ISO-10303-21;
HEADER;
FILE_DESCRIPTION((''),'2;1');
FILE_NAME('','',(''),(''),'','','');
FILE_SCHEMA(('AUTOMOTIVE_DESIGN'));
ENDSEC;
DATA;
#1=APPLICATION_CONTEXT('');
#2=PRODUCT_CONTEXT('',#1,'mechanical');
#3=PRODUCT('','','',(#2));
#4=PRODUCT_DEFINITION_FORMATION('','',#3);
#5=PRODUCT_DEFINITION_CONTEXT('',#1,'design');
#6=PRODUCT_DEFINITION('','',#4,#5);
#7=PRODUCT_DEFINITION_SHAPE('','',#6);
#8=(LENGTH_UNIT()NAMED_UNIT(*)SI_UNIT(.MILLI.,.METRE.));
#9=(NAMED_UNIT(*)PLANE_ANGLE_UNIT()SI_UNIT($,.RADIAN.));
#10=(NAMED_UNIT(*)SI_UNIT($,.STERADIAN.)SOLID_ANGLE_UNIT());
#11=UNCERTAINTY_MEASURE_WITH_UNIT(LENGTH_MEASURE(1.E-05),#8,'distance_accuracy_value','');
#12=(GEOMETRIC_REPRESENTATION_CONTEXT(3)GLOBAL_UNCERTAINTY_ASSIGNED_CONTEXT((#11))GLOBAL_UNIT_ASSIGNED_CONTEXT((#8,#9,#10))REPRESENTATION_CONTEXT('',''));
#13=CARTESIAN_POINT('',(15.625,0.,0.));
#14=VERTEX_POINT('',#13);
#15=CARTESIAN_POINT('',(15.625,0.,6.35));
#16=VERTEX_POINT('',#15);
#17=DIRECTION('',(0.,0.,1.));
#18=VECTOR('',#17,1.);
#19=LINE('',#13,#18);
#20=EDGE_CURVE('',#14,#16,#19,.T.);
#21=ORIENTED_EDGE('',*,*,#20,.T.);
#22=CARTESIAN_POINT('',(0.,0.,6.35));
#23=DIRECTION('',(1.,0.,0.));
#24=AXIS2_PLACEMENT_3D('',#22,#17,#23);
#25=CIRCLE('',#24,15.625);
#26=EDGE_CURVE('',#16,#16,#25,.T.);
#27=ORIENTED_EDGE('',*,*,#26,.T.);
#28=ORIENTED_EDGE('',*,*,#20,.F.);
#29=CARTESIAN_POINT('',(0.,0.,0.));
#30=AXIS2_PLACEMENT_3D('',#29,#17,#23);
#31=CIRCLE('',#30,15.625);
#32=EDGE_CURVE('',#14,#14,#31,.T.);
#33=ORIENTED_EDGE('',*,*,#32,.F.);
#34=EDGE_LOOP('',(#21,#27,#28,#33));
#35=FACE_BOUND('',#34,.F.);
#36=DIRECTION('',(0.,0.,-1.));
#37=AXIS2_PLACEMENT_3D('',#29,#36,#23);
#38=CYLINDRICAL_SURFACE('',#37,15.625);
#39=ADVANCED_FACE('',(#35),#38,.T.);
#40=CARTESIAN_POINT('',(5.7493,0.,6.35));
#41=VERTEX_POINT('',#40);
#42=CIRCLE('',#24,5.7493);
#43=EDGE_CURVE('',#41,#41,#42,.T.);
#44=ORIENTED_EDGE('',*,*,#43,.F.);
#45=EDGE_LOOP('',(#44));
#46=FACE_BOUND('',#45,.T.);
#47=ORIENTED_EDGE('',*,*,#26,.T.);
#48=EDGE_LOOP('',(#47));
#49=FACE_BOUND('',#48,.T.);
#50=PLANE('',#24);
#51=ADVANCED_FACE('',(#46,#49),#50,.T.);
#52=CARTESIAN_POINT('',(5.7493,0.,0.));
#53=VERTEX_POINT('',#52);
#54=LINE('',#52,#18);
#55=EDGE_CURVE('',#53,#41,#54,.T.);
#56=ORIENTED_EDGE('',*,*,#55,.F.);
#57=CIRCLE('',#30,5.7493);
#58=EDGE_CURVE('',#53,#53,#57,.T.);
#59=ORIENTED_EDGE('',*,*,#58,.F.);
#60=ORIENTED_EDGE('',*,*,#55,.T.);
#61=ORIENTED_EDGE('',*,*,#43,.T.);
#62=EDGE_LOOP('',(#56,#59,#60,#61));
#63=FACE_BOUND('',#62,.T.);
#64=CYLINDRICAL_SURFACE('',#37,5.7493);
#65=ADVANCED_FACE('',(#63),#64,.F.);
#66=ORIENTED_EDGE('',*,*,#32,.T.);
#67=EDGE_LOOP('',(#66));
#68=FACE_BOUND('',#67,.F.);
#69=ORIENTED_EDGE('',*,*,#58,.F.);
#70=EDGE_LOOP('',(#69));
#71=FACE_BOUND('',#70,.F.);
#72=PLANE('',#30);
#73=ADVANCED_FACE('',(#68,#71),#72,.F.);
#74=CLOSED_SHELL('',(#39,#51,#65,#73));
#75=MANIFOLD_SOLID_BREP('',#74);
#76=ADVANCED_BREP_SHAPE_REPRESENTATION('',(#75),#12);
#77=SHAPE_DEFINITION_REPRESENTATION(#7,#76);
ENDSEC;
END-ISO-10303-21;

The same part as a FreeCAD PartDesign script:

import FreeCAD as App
import Part
import Sketcher

V = App.Vector
Q = App.Units.Quantity

doc = App.newDocument("Part")
body = doc.addObject("PartDesign::Body", "Body")

# Sketch on XY plane
sketch1 = body.newObject("Sketcher::SketchObject", "Sketch")
sketch1.AttachmentSupport = (doc.getObject("XY_Plane"), [""])
sketch1.MapMode = "FlatFace"
sketch1.addGeometry([
    Part.Circle(V(0, 0, 0), V(0, 0, 1), 16),
    Part.Circle(V(0, 0, 0), V(0, 0, 1), 6),
], False)
sketch1.addConstraint([
    Sketcher.Constraint("Coincident", 0, 3, -1, 1),
    Sketcher.Constraint("Coincident", 1, 3, -1, 1),
    Sketcher.Constraint("Diameter", 1, Q("0.4527 in")),
    Sketcher.Constraint("Diameter", 0, 31.25),
])
pad1 = body.newObject("PartDesign::Pad", "Pad")
pad1.Profile = sketch1
pad1.Length = Q("0.25 in")

doc.recompute()
